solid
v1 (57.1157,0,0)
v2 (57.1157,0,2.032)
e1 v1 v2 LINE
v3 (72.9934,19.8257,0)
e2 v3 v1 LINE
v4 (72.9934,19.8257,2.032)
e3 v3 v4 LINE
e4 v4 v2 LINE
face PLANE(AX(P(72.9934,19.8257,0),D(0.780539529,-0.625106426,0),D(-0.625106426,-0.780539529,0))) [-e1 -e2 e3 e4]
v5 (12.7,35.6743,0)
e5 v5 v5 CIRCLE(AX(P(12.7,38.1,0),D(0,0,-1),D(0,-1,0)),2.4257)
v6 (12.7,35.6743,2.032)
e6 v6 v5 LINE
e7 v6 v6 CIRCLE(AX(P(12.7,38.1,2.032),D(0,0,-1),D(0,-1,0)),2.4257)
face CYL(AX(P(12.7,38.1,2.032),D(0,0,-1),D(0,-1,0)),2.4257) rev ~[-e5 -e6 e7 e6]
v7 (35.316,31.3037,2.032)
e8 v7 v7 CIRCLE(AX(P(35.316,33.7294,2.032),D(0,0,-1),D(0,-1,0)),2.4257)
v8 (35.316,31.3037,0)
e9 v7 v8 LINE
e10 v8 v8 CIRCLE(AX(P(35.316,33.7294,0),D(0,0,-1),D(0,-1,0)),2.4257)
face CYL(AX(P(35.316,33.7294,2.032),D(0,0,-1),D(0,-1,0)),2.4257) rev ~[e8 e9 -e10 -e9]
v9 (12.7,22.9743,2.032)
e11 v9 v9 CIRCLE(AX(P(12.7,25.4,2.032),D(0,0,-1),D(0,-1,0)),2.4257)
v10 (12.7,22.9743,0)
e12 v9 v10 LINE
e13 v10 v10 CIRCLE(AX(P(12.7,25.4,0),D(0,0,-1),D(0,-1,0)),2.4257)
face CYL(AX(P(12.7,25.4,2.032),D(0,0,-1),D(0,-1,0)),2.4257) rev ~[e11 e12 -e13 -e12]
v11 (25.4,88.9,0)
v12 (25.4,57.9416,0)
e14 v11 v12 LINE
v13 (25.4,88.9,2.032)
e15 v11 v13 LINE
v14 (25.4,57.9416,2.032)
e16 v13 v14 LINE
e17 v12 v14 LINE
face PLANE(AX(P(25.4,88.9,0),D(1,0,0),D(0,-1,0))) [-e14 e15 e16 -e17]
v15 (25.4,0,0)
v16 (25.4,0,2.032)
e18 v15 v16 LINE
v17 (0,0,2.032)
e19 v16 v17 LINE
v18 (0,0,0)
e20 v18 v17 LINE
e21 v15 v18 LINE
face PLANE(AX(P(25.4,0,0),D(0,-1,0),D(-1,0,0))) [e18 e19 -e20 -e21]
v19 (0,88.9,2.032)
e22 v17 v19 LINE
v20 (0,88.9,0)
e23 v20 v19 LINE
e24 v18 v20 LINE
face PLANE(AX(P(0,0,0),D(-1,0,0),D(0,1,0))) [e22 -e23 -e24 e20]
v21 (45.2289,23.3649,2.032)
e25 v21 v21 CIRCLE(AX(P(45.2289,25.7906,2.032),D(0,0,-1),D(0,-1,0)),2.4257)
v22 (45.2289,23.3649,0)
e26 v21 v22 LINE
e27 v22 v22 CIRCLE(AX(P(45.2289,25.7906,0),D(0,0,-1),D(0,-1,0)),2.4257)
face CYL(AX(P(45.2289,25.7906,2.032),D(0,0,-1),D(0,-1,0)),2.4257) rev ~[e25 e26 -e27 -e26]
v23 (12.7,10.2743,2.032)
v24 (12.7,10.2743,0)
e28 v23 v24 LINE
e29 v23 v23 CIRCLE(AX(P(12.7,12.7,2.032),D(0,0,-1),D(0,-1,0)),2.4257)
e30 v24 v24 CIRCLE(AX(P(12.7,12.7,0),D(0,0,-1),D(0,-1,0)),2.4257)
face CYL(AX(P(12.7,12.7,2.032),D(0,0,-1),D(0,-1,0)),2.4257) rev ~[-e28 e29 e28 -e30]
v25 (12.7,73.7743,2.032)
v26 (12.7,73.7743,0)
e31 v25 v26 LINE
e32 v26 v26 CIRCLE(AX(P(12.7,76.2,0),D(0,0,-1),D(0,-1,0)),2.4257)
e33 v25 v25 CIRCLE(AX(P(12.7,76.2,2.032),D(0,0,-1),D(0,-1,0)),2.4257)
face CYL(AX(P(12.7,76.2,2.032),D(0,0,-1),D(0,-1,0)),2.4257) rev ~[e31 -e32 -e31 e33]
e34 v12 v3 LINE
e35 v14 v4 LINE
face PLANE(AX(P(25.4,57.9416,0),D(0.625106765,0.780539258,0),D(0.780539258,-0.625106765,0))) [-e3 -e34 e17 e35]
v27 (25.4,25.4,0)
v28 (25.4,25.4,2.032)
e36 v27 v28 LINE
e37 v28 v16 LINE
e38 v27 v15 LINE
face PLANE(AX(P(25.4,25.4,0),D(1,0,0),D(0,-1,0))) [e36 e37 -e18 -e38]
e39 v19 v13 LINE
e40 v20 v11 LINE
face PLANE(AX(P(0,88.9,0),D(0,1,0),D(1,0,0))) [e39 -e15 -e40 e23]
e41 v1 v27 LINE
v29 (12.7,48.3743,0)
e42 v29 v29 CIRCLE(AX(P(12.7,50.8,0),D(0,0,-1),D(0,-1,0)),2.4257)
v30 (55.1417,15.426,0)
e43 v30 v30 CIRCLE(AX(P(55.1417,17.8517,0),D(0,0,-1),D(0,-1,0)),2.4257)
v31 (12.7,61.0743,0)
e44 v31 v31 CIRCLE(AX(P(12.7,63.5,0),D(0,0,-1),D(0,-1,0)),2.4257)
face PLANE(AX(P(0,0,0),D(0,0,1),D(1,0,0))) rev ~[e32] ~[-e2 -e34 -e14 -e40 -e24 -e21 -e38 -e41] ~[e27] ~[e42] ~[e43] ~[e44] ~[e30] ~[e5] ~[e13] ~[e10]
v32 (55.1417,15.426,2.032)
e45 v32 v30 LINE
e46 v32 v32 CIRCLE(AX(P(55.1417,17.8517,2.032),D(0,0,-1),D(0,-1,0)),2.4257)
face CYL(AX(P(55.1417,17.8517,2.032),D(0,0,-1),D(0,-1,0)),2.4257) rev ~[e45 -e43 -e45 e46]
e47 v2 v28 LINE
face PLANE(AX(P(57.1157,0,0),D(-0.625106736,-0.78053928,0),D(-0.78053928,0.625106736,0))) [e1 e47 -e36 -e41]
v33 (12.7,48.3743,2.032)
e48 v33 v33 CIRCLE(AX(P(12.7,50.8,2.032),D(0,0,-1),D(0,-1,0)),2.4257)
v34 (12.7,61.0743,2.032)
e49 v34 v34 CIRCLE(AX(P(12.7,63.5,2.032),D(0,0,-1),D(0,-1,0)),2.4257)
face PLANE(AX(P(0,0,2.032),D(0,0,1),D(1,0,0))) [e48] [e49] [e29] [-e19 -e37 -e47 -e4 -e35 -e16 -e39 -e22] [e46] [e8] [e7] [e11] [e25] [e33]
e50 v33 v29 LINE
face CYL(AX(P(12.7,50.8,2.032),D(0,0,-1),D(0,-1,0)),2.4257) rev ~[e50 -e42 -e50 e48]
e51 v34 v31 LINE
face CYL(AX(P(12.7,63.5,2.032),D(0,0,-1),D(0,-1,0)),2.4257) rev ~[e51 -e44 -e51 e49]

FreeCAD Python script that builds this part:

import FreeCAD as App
import Part
import Sketcher
from FreeCAD import Vector
Q = App.Units.Quantity

doc = App.newDocument("Part")
body = doc.addObject("PartDesign::Body", "Body")

sketch1 = body.newObject("Sketcher::SketchObject", "Sketch")
sketch1.AttachmentSupport = (doc.getObject("XY_Plane"), [""])
sketch1.MapMode = "FlatFace"
sketch1.addGeometry([
    Part.LineSegment(Vector(0, 88.9, 0), Vector(0, 0, 0)),
    Part.LineSegment(Vector(0, 0, 0), Vector(25.4, 0, 0)),
    Part.LineSegment(Vector(25.4, 0, 0), Vector(25.4, 25.4, 0)),
    Part.LineSegment(Vector(25.4, 25.4, 0), Vector(57.1157, 0, 0)),
    Part.LineSegment(Vector(57.1157, 0, 0), Vector(72.9934, 19.8257, 0)),
    Part.LineSegment(Vector(72.9934, 19.8257, 0), Vector(25.4, 57.9416, 0)),
    Part.LineSegment(Vector(25.4, 57.9416, 0), Vector(25.4, 88.9, 0)),
    Part.LineSegment(Vector(25.4, 88.9, 0), Vector(0, 88.9, 0)),
], False)
sketch1.addConstraint([
    Sketcher.Constraint("Coincident", 0, 2, 1, 1),
    Sketcher.Constraint("Coincident", 1, 2, 2, 1),
    Sketcher.Constraint("Coincident", 2, 2, 3, 1),
    Sketcher.Constraint("Coincident", 3, 2, 4, 1),
    Sketcher.Constraint("Coincident", 4, 2, 5, 1),
    Sketcher.Constraint("Coincident", 5, 2, 6, 1),
    Sketcher.Constraint("Coincident", 6, 2, 7, 1),
    Sketcher.Constraint("Coincident", 7, 2, 0, 1),
    Sketcher.Constraint("Vertical", 0),
    Sketcher.Constraint("Horizontal", 1),
    Sketcher.Constraint("Vertical", 2),
    Sketcher.Constraint("Vertical", 6),
    Sketcher.Constraint("Horizontal", 7),
    Sketcher.Constraint("Coincident", 0, 2, -1, 1),
    Sketcher.Constraint("PointOnObject", 3, 2, -1),
    Sketcher.Constraint("Perpendicular", 3, 4),
    Sketcher.Constraint("Perpendicular", 4, 5),
    Sketcher.Constraint("Vertical", 2, 2, 5, 2),
    Sketcher.Constraint("Equal", 7, 2),
    Sketcher.Constraint("DistanceX", 1, 1, 1, 2, Q("1 in")),
    Sketcher.Constraint("Distance", 4, Q("1 in")),
    Sketcher.Constraint("DistanceY", 0, 2, 0, 1, Q("3.5 in")),
    Sketcher.Constraint("Angle", 4, Q("51.31 deg")),
])
pad1 = body.newObject("PartDesign::Pad", "Pad")
pad1.Profile = sketch1
pad1.Length = Q("0.08 in")

sketch2 = body.newObject("Sketcher::SketchObject", "Sketch001")
sketch2.AttachmentSupport = (doc.getObject("XY_Plane"), [""])
sketch2.MapMode = "FlatFace"
sketch2.AttachmentOffset = App.Placement(Vector(0, 0, 0.08 * 25.4), App.Rotation())
sketch2.addGeometry([
    Part.Circle(Vector(12.7, 12.7, 0), Vector(0, 0, 1), 2.4257),
    Part.Circle(Vector(12.7, 25.4, 0), Vector(0, 0, 1), 2.4257),
    Part.Circle(Vector(12.7, 38.1, 0), Vector(0, 0, 1), 2.4257),
    Part.Circle(Vector(12.7, 50.8, 0), Vector(0, 0, 1), 2.4257),
    Part.Circle(Vector(12.7, 63.5, 0), Vector(0, 0, 1), 2.4257),
    Part.Circle(Vector(12.7, 76.2, 0), Vector(0, 0, 1), 2.4257),
    Part.Circle(Vector(55.1417, 17.8517, 0), Vector(0, 0, 1), 2.4257),
    Part.Circle(Vector(45.2289, 25.7906, 0), Vector(0, 0, 1), 2.4257),
    Part.Circle(Vector(35.316, 33.7294, 0), Vector(0, 0, 1), 2.4257),
], False)
sketch2.addConstraint([
    Sketcher.Constraint("Equal", 0, 1),
    Sketcher.Constraint("Equal", 1, 2),
    Sketcher.Constraint("Equal", 2, 3),
    Sketcher.Constraint("Equal", 3, 4),
    Sketcher.Constraint("Equal", 4, 5),
    Sketcher.Constraint("Equal", 5, 6),
    Sketcher.Constraint("Equal", 6, 7),
    Sketcher.Constraint("Equal", 7, 8),
    Sketcher.Constraint("Vertical", 0, 3, 1, 3),
    Sketcher.Constraint("Vertical", 1, 3, 2, 3),
    Sketcher.Constraint("Vertical", 2, 3, 3, 3),
    Sketcher.Constraint("Vertical", 3, 3, 4, 3),
    Sketcher.Constraint("Vertical", 4, 3, 5, 3),
    Sketcher.Constraint("Diameter", 0, Q("0.191 in")),
    Sketcher.Constraint("DistanceY", -1, 1, 1, 3, Q("1 in")),
    Sketcher.Constraint("DistanceY", -1, 1, 3, 3, Q("2 in")),
    Sketcher.Constraint("DistanceY", -1, 1, 5, 3, Q("3 in")),
    Sketcher.Constraint("DistanceY", 0, 3, 2, 3, Q("1 in")),
    Sketcher.Constraint("DistanceY", 2, 3, 4, 3, Q("1 in")),
    Sketcher.Constraint("DistanceX", -1, 1, 0, 3, Q("0.5 in")),
    Sketcher.Constraint("DistanceY", -1, 1, 0, 3, Q("0.5 in")),
    Sketcher.Constraint("DistanceX", -1, 1, 8, 3, Q("1.3904 in")),
    Sketcher.Constraint("DistanceY", 6, 3, 8, 3, Q("0.6251 in")),
    Sketcher.Constraint("DistanceX", -1, 1, 6, 3, 55.1417),
    Sketcher.Constraint("DistanceY", -1, 1, 6, 3, 17.8517),
    Sketcher.Constraint("DistanceX", -1, 1, 7, 3, 45.229),
    Sketcher.Constraint("DistanceY", -1, 1, 7, 3, 25.7906),
])
doc.recompute()
hole = body.newObject("PartDesign::Hole", "Hole")
hole.Profile = sketch2
hole.ThreadType = "None"
hole.Diameter = Q("0.191 in")
hole.DepthType = "ThroughAll"

doc.recompute()
